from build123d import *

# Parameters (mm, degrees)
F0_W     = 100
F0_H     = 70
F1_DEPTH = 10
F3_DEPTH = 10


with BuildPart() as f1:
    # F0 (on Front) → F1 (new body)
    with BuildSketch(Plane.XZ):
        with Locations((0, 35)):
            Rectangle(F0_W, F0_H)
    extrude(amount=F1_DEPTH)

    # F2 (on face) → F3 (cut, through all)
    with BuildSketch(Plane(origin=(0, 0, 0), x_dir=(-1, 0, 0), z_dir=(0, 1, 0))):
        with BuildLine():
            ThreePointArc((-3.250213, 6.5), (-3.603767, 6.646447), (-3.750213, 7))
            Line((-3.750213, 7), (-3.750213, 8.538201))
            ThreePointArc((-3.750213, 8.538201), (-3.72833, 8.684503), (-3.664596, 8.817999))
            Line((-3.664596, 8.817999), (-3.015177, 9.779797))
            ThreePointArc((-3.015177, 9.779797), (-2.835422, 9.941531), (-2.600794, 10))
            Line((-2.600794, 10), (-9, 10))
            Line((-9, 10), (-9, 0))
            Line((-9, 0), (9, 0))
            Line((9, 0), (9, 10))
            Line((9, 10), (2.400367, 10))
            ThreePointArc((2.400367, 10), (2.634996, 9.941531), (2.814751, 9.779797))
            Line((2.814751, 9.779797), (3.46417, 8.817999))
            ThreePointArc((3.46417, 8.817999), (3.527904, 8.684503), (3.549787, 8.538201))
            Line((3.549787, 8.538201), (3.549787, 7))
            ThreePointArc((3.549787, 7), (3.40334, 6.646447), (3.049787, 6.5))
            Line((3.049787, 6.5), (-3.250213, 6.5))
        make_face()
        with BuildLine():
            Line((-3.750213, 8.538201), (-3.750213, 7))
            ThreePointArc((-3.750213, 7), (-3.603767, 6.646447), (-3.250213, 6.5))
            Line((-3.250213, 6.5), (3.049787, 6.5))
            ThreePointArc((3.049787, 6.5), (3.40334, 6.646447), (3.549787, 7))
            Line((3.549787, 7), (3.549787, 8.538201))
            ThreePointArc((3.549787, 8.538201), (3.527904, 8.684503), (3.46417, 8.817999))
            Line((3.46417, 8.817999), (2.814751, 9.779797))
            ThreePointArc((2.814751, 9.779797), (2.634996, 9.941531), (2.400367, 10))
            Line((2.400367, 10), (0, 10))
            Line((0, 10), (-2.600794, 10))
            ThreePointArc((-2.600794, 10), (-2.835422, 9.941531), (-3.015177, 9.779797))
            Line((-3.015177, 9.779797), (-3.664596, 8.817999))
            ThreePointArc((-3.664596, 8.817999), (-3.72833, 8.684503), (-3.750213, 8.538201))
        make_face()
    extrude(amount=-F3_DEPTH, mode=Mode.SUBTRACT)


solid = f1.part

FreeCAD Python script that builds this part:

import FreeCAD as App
import Part
import Sketcher
from FreeCAD import Vector
Q = App.Units.Quantity


def add_polygon(sketch, points):
    """Adds a closed chain of lines whose ends are joined by coincident constraints."""
    first, n = sketch.GeometryCount, len(points)
    for a, b in zip(points, points[1:] + points[:1]):
        sketch.addGeometry(Part.LineSegment(App.Vector(*a, 0), App.Vector(*b, 0)), False)
    for i in range(n):
        sketch.addConstraint(Sketcher.Constraint("Coincident", first + i, 2, first + (i + 1) % n, 1))

doc = App.newDocument("Part")
params = doc.addObject("Spreadsheet::Sheet", "Params")
for row, (alias, value) in enumerate([
    ("sketch1_width", "100 mm"),
    ("sketch1_height", "70 mm"),
    ("pad1_length", "10 mm"),
    ("sketch2_width", "18 mm"),
    ("sketch2_height", "10 mm"),
], start=1):
    params.set(f"A{row}", alias)
    params.set(f"B{row}", "=" + value)
    params.setAlias(f"B{row}", alias)

body = doc.addObject("PartDesign::Body", "Body")

# Sketch on XZ plane
sketch1 = body.newObject("Sketcher::SketchObject", "Sketch")
sketch1.AttachmentSupport = (doc.getObject("XZ_Plane"), [""])
sketch1.MapMode = "FlatFace"
add_polygon(sketch1, [(-50, 70), (-50, 0), (50, 0), (50, 70)])  # lines 0-3
sketch1.addConstraint([
    Sketcher.Constraint("Vertical", 0),
    Sketcher.Constraint("Horizontal", 1),
    Sketcher.Constraint("Vertical", 2),
    Sketcher.Constraint("Horizontal", 3),
    Sketcher.Constraint("Symmetric", 0, 2, 1, 2, -1, 1),
    Sketcher.Constraint("DistanceX", 1, 1, 1, 2, Q("100 mm")),
    Sketcher.Constraint("DistanceY", 0, 2, 0, 1, Q("70 mm")),
])
sketch1.setExpression("Constraints[9]", "Params.sketch1_width")
sketch1.setExpression("Constraints[10]", "Params.sketch1_height")
pad1 = body.newObject("PartDesign::Pad", "Pad")
pad1.Profile = sketch1
pad1.setExpression("Length", "Params.pad1_length")

# Sketch on XZ plane
sketch2 = body.newObject("Sketcher::SketchObject", "Sketch001")
sketch2.AttachmentSupport = (doc.getObject("XZ_Plane"), [""])
sketch2.MapMode = "FlatFace"
add_polygon(sketch2, [(9, 10), (9, 0), (-9, 0), (-9, 10)])  # lines 0-3
sketch2.addConstraint([
    Sketcher.Constraint("Vertical", 0),
    Sketcher.Constraint("Horizontal", 1),
    Sketcher.Constraint("Vertical", 2),
    Sketcher.Constraint("Horizontal", 3),
    Sketcher.Constraint("Symmetric", 0, 2, 1, 2, -1, 1),
    Sketcher.Constraint("DistanceX", 1, 2, 1, 1, Q("18 mm")),
    Sketcher.Constraint("DistanceY", 0, 2, 0, 1, Q("10 mm")),
])
sketch2.setExpression("Constraints[9]", "Params.sketch2_width")
sketch2.setExpression("Constraints[10]", "Params.sketch2_height")
pocket1 = body.newObject("PartDesign::Pocket", "Pocket")
pocket1.Profile = sketch2
pocket1.Type = "ThroughAll"
pocket1.Reversed = True

doc.recompute()
